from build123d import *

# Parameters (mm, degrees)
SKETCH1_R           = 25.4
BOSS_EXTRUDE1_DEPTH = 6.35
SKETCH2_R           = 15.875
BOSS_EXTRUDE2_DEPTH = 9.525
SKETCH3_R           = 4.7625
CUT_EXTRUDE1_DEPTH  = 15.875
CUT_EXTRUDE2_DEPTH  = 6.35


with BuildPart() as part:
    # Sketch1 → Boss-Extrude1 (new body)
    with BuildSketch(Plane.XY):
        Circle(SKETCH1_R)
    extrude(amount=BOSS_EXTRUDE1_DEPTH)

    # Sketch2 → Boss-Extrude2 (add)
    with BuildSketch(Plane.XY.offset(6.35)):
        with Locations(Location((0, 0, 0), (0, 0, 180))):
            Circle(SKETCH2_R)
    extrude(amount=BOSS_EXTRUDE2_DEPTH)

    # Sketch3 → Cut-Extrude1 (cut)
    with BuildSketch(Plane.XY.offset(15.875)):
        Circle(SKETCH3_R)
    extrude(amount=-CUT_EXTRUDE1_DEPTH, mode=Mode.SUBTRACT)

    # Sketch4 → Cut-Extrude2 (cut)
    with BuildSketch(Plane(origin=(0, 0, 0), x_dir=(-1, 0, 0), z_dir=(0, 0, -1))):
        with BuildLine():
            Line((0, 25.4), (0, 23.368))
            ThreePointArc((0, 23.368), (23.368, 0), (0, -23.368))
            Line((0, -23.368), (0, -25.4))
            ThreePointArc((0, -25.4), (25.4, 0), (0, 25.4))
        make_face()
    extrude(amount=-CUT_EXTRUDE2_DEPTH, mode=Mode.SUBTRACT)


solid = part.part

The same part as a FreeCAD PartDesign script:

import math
import FreeCAD as App
import Part
import Sketcher

V = App.Vector
Q = App.Units.Quantity

doc = App.newDocument("Part")
body = doc.addObject("PartDesign::Body", "Body")

# Sketch on XY plane
sketch1 = body.newObject("Sketcher::SketchObject", "Sketch")
sketch1.AttachmentSupport = (doc.getObject("XY_Plane"), [""])
sketch1.MapMode = "FlatFace"
sketch1.addGeometry(Part.Circle(V(0, 0, 0), V(0, 0, 1), 25.4), False)
sketch1.addConstraint([
    Sketcher.Constraint("Coincident", 0, 3, -1, 1),
    Sketcher.Constraint("Diameter", 0, Q("2 in")),
])
pad1 = body.newObject("PartDesign::Pad", "Pad")
pad1.Profile = sketch1
pad1.Length = Q("0.25 in")

# Sketch on XY plane
sketch2 = body.newObject("Sketcher::SketchObject", "Sketch001")
sketch2.AttachmentSupport = (doc.getObject("XY_Plane"), [""])
sketch2.MapMode = "FlatFace"
sketch2.AttachmentOffset = App.Placement(V(0, 0, 0.25 * 25.4), App.Rotation())
sketch2.addGeometry(Part.Circle(V(0, 0, 0), V(0, 0, 1), 15.875), False)
sketch2.addConstraint([
    Sketcher.Constraint("Coincident", 0, 3, -1, 1),
    Sketcher.Constraint("Diameter", 0, Q("1.25 in")),
])
pad2 = body.newObject("PartDesign::Pad", "Pad001")
pad2.Profile = sketch2
pad2.Length = Q("0.375 in")

# Sketch on XY plane
sketch3 = body.newObject("Sketcher::SketchObject", "Sketch002")
sketch3.AttachmentSupport = (doc.getObject("XY_Plane"), [""])
sketch3.MapMode = "FlatFace"
sketch3.AttachmentOffset = App.Placement(V(0, 0, 0.625 * 25.4), App.Rotation())
sketch3.addGeometry(Part.Circle(V(0, 0, 0), V(0, 0, 1), 4.7625), False)
sketch3.addConstraint([
    Sketcher.Constraint("Coincident", 0, 3, -1, 1),
    Sketcher.Constraint("Diameter", 0, Q("0.375 in")),
])
pocket1 = body.newObject("PartDesign::Pocket", "Pocket")
pocket1.Profile = sketch3
pocket1.Length = Q("0.625 in")

# Sketch on XY plane
sketch4 = body.newObject("Sketcher::SketchObject", "Sketch003")
sketch4.AttachmentSupport = (doc.getObject("XY_Plane"), [""])
sketch4.MapMode = "FlatFace"
sketch4.addGeometry([
    Part.LineSegment(V(0, 25.4, 0), V(0, 23.368, 0)),
    Part.ArcOfCircle(Part.Circle(V(0, 0, 0), V(0, 0, 1), 23.368), math.radians(90), math.radians(270)),
    Part.LineSegment(V(0, -23.368, 0), V(0, -25.4, 0)),
    Part.ArcOfCircle(Part.Circle(V(0, 0, 0), V(0, 0, 1), 25.4), math.radians(90), math.radians(270)),
], False)
sketch4.addConstraint([
    Sketcher.Constraint("Coincident", 0, 2, 1, 1),
    Sketcher.Constraint("Coincident", 1, 2, 2, 1),
    Sketcher.Constraint("Coincident", 2, 2, 3, 2),
    Sketcher.Constraint("Coincident", 3, 1, 0, 1),
    Sketcher.Constraint("Vertical", 0),
    Sketcher.Constraint("Vertical", 2),
    Sketcher.Constraint("Coincident", 1, 3, -1, 1),
    Sketcher.Constraint("Coincident", 3, 3, -1, 1),
    Sketcher.Constraint("PointOnObject", 0, 2, -2),
    Sketcher.Constraint("PointOnObject", 1, 2, -2),
    Sketcher.Constraint("Radius", 3, Q("1 in")),
    Sketcher.Constraint("Radius", 1, Q("0.92 in")),
])
pocket2 = body.newObject("PartDesign::Pocket", "Pocket001")
pocket2.Profile = sketch4
pocket2.Length = Q("0.25 in")
pocket2.Reversed = True

doc.recompute()
